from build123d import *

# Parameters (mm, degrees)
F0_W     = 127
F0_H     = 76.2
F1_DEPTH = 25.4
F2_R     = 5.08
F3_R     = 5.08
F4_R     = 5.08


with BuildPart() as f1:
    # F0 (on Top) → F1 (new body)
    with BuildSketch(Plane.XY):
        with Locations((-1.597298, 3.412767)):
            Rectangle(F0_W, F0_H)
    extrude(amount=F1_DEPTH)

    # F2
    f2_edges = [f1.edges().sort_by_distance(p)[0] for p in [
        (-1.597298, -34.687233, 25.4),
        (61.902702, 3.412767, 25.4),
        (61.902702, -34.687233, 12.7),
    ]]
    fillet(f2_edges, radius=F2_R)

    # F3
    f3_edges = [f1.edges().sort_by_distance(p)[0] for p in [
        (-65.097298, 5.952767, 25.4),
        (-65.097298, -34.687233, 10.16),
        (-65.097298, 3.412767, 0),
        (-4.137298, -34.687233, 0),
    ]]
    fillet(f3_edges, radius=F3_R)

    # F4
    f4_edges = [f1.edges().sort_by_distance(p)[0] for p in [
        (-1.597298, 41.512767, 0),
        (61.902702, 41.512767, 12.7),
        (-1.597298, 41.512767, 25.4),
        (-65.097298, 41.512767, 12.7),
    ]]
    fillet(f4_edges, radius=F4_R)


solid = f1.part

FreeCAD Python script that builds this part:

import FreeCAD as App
import Part
import Sketcher

V = App.Vector
Q = App.Units.Quantity


def edges_at(feature, points):
    """Names of the edges that pass closest to the given points."""
    edges = feature.Shape.Edges
    near = lambda p: min(range(len(edges)), key=lambda i: edges[i].distToShape(Part.Vertex(*p))[0])
    return sorted({f"Edge{near(p) + 1}" for p in points})


def add_polygon(sketch, points):
    """Adds a closed chain of lines whose ends are joined by coincident constraints."""
    first, n = sketch.GeometryCount, len(points)
    for a, b in zip(points, points[1:] + points[:1]):
        sketch.addGeometry(Part.LineSegment(App.Vector(*a, 0), App.Vector(*b, 0)), False)
    for i in range(n):
        sketch.addConstraint(Sketcher.Constraint("Coincident", first + i, 2, first + (i + 1) % n, 1))

doc = App.newDocument("Part")
body = doc.addObject("PartDesign::Body", "Body")

# Sketch on XY plane
sketch1 = doc.addObject("Sketcher::SketchObject", "Sketch")
body.addObject(sketch1)
sketch1.AttachmentSupport = (doc.XY_Plane, [""])
sketch1.MapMode = "FlatFace"
add_polygon(sketch1, [(-65, 42), (-65, -35), (62, -35), (62, 42)])  # lines 0-3
sketch1.addConstraint(Sketcher.Constraint("Vertical", 0))
sketch1.addConstraint(Sketcher.Constraint("Horizontal", 1))
sketch1.addConstraint(Sketcher.Constraint("Vertical", 2))
sketch1.addConstraint(Sketcher.Constraint("Horizontal", 3))
sketch1.addConstraint(Sketcher.Constraint("DistanceX", 1, 1, 1, 2, Q("5 in")))
sketch1.addConstraint(Sketcher.Constraint("DistanceY", 0, 2, 0, 1, Q("3 in")))
sketch1.addConstraint(Sketcher.Constraint("DistanceX", -1, 1, 1, 2, Q("61.902702 mm")))
sketch1.addConstraint(Sketcher.Constraint("DistanceY", 0, 2, -1, 1, Q("34.687233 mm")))
pad1 = doc.addObject("PartDesign::Pad", "Pad")
body.addObject(pad1)
pad1.Profile = sketch1
pad1.Length = Q("1 in")
doc.recompute()

fillet = doc.addObject("PartDesign::Fillet", "Fillet")
body.addObject(fillet)
fillet.Base = (pad1, edges_at(pad1, [(-1.597, -34.687, 25.4), (61.903, 3.413, 25.4), (61.903, -34.687, 12.7)]))
fillet.Radius = Q("0.2 in")
doc.recompute()

fillet2 = doc.addObject("PartDesign::Fillet", "Fillet001")
body.addObject(fillet2)
fillet2.Base = (fillet, edges_at(fillet, [
    (-65.097, 5.953, 25.4),
    (-65.097, -34.687, 10.16),
    (-65.097, 3.413, 0),
    (-4.137, -34.687, 0),
]))
fillet2.Radius = Q("0.2 in")
doc.recompute()

fillet3 = doc.addObject("PartDesign::Fillet", "Fillet002")
body.addObject(fillet3)
fillet3.Base = (fillet2, edges_at(fillet2, [
    (-1.597, 41.513, 0),
    (61.903, 41.513, 12.7),
    (-1.597, 41.513, 25.4),
    (-65.097, 41.513, 12.7),
]))
fillet3.Radius = Q("0.2 in")

doc.recompute()
